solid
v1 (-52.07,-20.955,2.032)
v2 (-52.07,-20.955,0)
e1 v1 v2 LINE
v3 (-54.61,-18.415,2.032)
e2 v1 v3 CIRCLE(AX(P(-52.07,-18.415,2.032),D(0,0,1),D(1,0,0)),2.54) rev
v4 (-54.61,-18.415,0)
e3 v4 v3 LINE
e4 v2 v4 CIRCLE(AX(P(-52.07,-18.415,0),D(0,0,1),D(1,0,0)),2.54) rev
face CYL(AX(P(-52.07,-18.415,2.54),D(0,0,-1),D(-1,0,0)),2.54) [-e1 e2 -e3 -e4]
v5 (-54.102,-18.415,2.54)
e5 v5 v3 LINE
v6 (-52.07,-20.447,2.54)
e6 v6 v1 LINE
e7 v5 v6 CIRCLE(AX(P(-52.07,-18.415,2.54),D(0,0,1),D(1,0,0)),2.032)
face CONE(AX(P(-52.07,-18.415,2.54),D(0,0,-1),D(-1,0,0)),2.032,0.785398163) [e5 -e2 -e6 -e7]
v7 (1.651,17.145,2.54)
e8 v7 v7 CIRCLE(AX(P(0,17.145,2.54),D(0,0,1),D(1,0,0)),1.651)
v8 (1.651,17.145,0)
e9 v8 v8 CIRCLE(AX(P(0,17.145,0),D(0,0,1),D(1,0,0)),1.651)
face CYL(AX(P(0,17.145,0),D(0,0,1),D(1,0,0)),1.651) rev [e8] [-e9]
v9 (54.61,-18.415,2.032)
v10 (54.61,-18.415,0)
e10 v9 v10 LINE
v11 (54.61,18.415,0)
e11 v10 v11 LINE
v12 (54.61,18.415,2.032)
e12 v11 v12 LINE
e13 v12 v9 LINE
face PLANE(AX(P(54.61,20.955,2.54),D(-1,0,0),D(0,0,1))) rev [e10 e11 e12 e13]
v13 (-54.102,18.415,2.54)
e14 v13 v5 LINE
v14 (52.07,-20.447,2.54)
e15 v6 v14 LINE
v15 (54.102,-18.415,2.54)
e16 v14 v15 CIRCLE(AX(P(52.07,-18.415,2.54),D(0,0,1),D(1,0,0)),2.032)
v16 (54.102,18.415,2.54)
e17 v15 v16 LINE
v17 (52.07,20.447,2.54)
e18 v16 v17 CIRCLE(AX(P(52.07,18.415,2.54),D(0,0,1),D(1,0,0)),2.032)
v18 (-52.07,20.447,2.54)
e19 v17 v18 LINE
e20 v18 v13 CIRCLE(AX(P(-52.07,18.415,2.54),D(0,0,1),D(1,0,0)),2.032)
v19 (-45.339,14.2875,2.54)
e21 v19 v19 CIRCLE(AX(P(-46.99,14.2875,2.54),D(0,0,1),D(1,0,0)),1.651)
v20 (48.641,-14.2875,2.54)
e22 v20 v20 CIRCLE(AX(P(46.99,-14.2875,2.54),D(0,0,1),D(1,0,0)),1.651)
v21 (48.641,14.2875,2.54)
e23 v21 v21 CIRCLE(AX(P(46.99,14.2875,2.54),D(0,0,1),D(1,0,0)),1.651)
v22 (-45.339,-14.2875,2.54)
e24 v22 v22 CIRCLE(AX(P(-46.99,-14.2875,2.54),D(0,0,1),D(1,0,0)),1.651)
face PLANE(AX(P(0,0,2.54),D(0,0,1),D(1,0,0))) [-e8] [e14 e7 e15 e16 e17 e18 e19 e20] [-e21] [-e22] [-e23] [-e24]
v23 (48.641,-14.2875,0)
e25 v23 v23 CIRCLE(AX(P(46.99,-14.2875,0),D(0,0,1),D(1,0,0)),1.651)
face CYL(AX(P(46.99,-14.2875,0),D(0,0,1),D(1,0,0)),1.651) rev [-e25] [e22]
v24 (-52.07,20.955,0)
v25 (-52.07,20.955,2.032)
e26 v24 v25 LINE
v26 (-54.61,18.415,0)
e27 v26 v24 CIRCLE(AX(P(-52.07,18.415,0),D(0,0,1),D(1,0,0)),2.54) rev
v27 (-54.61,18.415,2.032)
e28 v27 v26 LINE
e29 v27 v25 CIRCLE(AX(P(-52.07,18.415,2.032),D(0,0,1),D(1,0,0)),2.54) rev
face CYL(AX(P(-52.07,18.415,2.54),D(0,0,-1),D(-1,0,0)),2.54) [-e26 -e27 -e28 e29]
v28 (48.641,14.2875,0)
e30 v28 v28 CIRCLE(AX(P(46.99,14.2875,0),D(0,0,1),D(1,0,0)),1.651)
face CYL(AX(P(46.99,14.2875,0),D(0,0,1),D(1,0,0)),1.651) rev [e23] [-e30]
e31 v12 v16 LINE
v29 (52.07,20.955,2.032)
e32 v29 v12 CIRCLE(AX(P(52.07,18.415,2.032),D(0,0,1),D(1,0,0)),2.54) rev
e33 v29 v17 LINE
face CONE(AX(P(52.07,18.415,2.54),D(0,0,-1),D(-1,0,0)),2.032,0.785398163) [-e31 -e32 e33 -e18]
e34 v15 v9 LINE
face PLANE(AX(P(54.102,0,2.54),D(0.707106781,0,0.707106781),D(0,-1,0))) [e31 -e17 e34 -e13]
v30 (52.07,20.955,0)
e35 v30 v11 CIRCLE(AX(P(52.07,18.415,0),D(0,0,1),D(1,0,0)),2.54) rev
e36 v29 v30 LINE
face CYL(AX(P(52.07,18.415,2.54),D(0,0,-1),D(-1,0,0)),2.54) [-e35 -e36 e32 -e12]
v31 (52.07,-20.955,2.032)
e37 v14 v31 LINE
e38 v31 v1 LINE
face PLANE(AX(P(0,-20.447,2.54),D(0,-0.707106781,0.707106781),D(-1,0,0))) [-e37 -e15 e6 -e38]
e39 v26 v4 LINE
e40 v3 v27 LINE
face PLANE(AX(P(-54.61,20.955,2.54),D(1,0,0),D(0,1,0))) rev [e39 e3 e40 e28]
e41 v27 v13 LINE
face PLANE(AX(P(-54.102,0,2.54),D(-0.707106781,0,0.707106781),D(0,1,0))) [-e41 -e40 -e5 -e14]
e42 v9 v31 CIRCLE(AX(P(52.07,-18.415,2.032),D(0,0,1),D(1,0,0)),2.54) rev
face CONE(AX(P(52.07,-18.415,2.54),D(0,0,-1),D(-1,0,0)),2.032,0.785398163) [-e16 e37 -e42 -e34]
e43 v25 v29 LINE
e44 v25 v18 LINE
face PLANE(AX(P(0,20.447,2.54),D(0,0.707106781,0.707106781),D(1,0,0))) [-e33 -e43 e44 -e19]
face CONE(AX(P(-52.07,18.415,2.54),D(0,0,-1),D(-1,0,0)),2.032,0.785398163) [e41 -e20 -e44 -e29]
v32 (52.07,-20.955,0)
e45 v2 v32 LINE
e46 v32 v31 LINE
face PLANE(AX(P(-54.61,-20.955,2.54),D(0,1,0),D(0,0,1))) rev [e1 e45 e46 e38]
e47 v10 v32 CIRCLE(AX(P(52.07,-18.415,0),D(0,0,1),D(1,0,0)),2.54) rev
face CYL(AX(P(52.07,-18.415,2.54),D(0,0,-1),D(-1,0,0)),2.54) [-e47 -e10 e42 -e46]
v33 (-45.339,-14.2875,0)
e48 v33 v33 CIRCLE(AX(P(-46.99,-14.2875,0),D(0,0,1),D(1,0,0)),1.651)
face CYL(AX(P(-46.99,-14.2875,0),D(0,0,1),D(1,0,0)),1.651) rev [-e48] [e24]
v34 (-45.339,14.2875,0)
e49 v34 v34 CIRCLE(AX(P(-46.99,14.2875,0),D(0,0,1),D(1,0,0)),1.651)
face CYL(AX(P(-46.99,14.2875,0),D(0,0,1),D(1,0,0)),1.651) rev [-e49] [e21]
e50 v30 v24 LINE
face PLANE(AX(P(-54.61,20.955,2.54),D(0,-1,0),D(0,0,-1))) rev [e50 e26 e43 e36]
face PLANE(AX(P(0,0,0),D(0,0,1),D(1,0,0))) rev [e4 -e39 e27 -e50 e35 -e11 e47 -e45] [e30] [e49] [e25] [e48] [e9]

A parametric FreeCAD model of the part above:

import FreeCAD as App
import Part
import Sketcher
from FreeCAD import Vector
Q = App.Units.Quantity


def edges_at(feature, points):
    """Names of the edges that pass closest to the given points."""
    edges = feature.Shape.Edges
    near = lambda p: min(range(len(edges)), key=lambda i: edges[i].distToShape(Part.Vertex(*p))[0])
    return sorted({f"Edge{near(p) + 1}" for p in points})


def add_polygon(sketch, points):
    """Adds a closed chain of lines whose ends are joined by coincident constraints."""
    first, n = sketch.GeometryCount, len(points)
    for a, b in zip(points, points[1:] + points[:1]):
        sketch.addGeometry(Part.LineSegment(App.Vector(*a, 0), App.Vector(*b, 0)), False)
    for i in range(n):
        sketch.addConstraint(Sketcher.Constraint("Coincident", first + i, 2, first + (i + 1) % n, 1))

doc = App.newDocument("Part")
body = doc.addObject("PartDesign::Body", "Body")

# Sketch on XY plane
sketch1 = body.newObject("Sketcher::SketchObject", "Sketch")
sketch1.AttachmentSupport = (doc.getObject("XY_Plane"), [""])
sketch1.MapMode = "FlatFace"
add_polygon(sketch1, [(-55, 21), (-55, -21), (55, -21), (55, 21)])  # lines 0-3
sketch1.addConstraint([
    Sketcher.Constraint("Vertical", 0),
    Sketcher.Constraint("Horizontal", 1),
    Sketcher.Constraint("Vertical", 2),
    Sketcher.Constraint("Horizontal", 3),
    Sketcher.Constraint("Symmetric", 0, 2, 2, 2, -1, 1),
    Sketcher.Constraint("DistanceX", 1, 1, 1, 2, Q("4.3 in")),
    Sketcher.Constraint("DistanceY", 0, 2, 0, 1, Q("1.65 in")),
])
pad1 = body.newObject("PartDesign::Pad", "Pad")
pad1.Profile = sketch1
pad1.Length = Q("0.1 in")

# Sketch on XY plane
sketch2 = body.newObject("Sketcher::SketchObject", "Sketch001")
sketch2.AttachmentSupport = (doc.getObject("XY_Plane"), [""])
sketch2.MapMode = "FlatFace"
sketch2.AttachmentOffset = App.Placement(Vector(0, 0, 0.1 * 25.4), App.Rotation())
sketch2.addGeometry([
    Part.Circle(Vector(-47, 14.3, 0), Vector(0, 0, 1), 1.7),
    Part.Circle(Vector(-47, -14.3, 0), Vector(0, 0, 1), 1.7),
    Part.Circle(Vector(47, -14.3, 0), Vector(0, 0, 1), 1.7),
    Part.Circle(Vector(47, 14.3, 0), Vector(0, 0, 1), 1.7),
], False)
sketch2.addConstraint([
    Sketcher.Constraint("Equal", 0, 1),
    Sketcher.Constraint("Equal", 1, 2),
    Sketcher.Constraint("Equal", 2, 3),
    Sketcher.Constraint("Symmetric", 0, 3, 2, 3, -1, 1),
    Sketcher.Constraint("Symmetric", 1, 3, 3, 3, -1, 1),
    Sketcher.Constraint("Symmetric", 1, 3, 2, 3, -2),
    Sketcher.Constraint("Diameter", 0, Q("0.13 in")),
    Sketcher.Constraint("DistanceX", 1, 3, 2, 3, Q("3.7 in")),
    Sketcher.Constraint("DistanceY", -1, 1, 0, 3, Q("0.5625 in")),
])
pocket1 = body.newObject("PartDesign::Pocket", "Pocket")
pocket1.Profile = sketch2
pocket1.Type = "ThroughAll"
pocket1.Midplane = True
doc.recompute()

fillet = body.newObject("PartDesign::Fillet", "Fillet")
fillet.Base = (pocket1, edges_at(pocket1, [
    (-54.61, 20.955, 1.27),
    (54.61, 20.955, 1.27),
    (54.61, -20.955, 1.27),
    (-54.61, -20.955, 1.27),
]))
fillet.Radius = Q("0.1 in")

# Sketch on XY plane
sketch3 = body.newObject("Sketcher::SketchObject", "Sketch002")
sketch3.AttachmentSupport = (doc.getObject("XY_Plane"), [""])
sketch3.MapMode = "FlatFace"
sketch3.AttachmentOffset = App.Placement(Vector(0, 0, 0.1 * 25.4), App.Rotation())
sketch3.addGeometry(Part.Circle(Vector(0, 17.1, 0), Vector(0, 0, 1), 1.7), False)
sketch3.addConstraint([
    Sketcher.Constraint("PointOnObject", 0, 3, -2),
    Sketcher.Constraint("Diameter", 0, Q("0.13 in")),
    Sketcher.Constraint("DistanceY", -1, 1, 0, 3, Q("0.675 in")),
])
pocket2 = body.newObject("PartDesign::Pocket", "Pocket001")
pocket2.Profile = sketch3
pocket2.Type = "ThroughAll"
doc.recompute()

chamfer = body.newObject("PartDesign::Chamfer", "Chamfer")
chamfer.Base = (pocket2, edges_at(pocket2, [
    (0, 20.955, 2.54),
    (54.61, 0, 2.54),
    (-54.61, 0, 2.54),
    (0, -20.955, 2.54),
    (-53.866, 20.211, 2.54),
    (-53.866, -20.211, 2.54),
    (53.866, -20.211, 2.54),
    (53.866, 20.211, 2.54),
]))
chamfer.Size = Q("0.02 in")

doc.recompute()
